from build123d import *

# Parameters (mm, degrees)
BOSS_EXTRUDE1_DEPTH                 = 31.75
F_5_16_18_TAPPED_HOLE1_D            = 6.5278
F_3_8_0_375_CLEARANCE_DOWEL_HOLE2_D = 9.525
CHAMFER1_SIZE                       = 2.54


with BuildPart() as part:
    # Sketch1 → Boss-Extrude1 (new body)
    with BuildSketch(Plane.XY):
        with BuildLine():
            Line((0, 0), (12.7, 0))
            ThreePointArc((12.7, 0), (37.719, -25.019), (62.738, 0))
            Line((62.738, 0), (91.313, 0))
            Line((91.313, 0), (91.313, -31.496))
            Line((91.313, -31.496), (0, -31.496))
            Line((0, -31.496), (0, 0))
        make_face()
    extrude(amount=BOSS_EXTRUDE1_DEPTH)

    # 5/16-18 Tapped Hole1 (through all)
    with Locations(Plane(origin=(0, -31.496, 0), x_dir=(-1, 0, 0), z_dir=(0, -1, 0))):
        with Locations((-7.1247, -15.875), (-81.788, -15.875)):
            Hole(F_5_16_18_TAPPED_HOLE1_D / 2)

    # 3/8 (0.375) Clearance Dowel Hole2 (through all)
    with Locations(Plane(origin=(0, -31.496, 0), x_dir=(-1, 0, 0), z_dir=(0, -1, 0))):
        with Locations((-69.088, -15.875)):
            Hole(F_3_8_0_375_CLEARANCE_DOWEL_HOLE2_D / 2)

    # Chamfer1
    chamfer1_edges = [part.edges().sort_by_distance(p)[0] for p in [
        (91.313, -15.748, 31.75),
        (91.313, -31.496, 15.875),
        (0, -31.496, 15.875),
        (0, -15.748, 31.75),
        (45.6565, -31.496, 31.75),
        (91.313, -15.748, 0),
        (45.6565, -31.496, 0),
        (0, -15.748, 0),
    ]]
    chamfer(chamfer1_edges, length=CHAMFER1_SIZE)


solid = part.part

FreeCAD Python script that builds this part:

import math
import FreeCAD as App
import Part
import Sketcher
from FreeCAD import Vector
Q = App.Units.Quantity


def edges_at(feature, points):
    """Names of the edges that pass closest to the given points."""
    edges = feature.Shape.Edges
    near = lambda p: min(range(len(edges)), key=lambda i: edges[i].distToShape(Part.Vertex(*p))[0])
    return sorted({f"Edge{near(p) + 1}" for p in points})

doc = App.newDocument("Part")
params = doc.addObject("Spreadsheet::Sheet", "Params")
for row, (alias, value) in enumerate([
    ("sketch1_width", "0.5 in"),
    ("sketch1_radius", "0.985 in"),
    ("sketch1_height", "1.24 in"),
    ("sketch1_width2", "3.595 in"),
    ("pad1_length", "1.25 in"),
    ("sketch2_diameter", "0.257 in"),
    ("hole_diameter", "0.257 in"),
    ("sketch3_diameter", "0.375 in"),
    ("hole2_diameter", "0.375 in"),
    ("chamfer_size", "0.1 in"),
], start=1):
    params.set(f"A{row}", alias)
    params.set(f"B{row}", "=" + value)
    params.setAlias(f"B{row}", alias)

body = doc.addObject("PartDesign::Body", "Body")

# Sketch on XY plane
sketch1 = body.newObject("Sketcher::SketchObject", "Sketch")
sketch1.AttachmentSupport = (doc.getObject("XY_Plane"), [""])
sketch1.MapMode = "FlatFace"
sketch1.addGeometry(Part.LineSegment(Vector(12.7, 0, 0), Vector(0, 0, 0)), False)
sketch1.addGeometry(Part.LineSegment(Vector(0, 0, 0), Vector(0, -31.496, 0)), False)
sketch1.addGeometry(Part.LineSegment(Vector(0, -31.496, 0), Vector(91.313, -31.496, 0)), False)
sketch1.addGeometry(Part.LineSegment(Vector(91.313, -31.496, 0), Vector(91.313, 0, 0)), False)
sketch1.addGeometry(Part.LineSegment(Vector(91.313, 0, 0), Vector(62.738, 0, 0)), False)
sketch1.addGeometry(Part.ArcOfCircle(Part.Circle(Vector(37.719, 0, 0), Vector(0, 0, 1), 25.019), math.radians(180), math.radians(360)), False)
sketch1.addConstraint(Sketcher.Constraint("Coincident", 0, 2, 1, 1))
sketch1.addConstraint(Sketcher.Constraint("Coincident", 1, 2, 2, 1))
sketch1.addConstraint(Sketcher.Constraint("Coincident", 2, 2, 3, 1))
sketch1.addConstraint(Sketcher.Constraint("Coincident", 3, 2, 4, 1))
sketch1.addConstraint(Sketcher.Constraint("Coincident", 4, 2, 5, 2))
sketch1.addConstraint(Sketcher.Constraint("Coincident", 5, 1, 0, 1))
sketch1.addConstraint(Sketcher.Constraint("Horizontal", 0))
sketch1.addConstraint(Sketcher.Constraint("Vertical", 1))
sketch1.addConstraint(Sketcher.Constraint("Horizontal", 2))
sketch1.addConstraint(Sketcher.Constraint("Vertical", 3))
sketch1.addConstraint(Sketcher.Constraint("Horizontal", 4))
sketch1.addConstraint(Sketcher.Constraint("Coincident", 0, 2, -1, 1))
sketch1.addConstraint(Sketcher.Constraint("PointOnObject", 5, 3, -1))
sketch1.addConstraint(Sketcher.Constraint("PointOnObject", 3, 2, -1))
sketch1.addConstraint(Sketcher.Constraint("DistanceX", 0, 2, 0, 1, Q("0.5 in")))
sketch1.addConstraint(Sketcher.Constraint("Radius", 5, Q("0.985 in")))
sketch1.addConstraint(Sketcher.Constraint("DistanceY", 1, 2, 1, 1, Q("1.24 in")))
sketch1.addConstraint(Sketcher.Constraint("DistanceX", 2, 1, 2, 2, Q("3.595 in")))
sketch1.setExpression("Constraints[14]", "Params.sketch1_width")
sketch1.setExpression("Constraints[15]", "Params.sketch1_radius")
sketch1.setExpression("Constraints[16]", "Params.sketch1_height")
sketch1.setExpression("Constraints[17]", "Params.sketch1_width2")
pad1 = body.newObject("PartDesign::Pad", "Pad")
pad1.Profile = sketch1
pad1.setExpression("Length", "Params.pad1_length")

# Sketch on XZ plane
sketch2 = body.newObject("Sketcher::SketchObject", "Sketch001")
sketch2.AttachmentSupport = (doc.getObject("XZ_Plane"), [""])
sketch2.MapMode = "FlatFace"
sketch2.AttachmentOffset = App.Placement(Vector(0, 0, 1.24 * 25.4), App.Rotation())
sketch2.addGeometry(Part.Circle(Vector(7.1247, 15.875, 0), Vector(0, 0, 1), 3.2639), False)
sketch2.addGeometry(Part.Circle(Vector(81.788, 15.875, 0), Vector(0, 0, 1), 3.2639), False)
sketch2.addConstraint(Sketcher.Constraint("Equal", 0, 1))
sketch2.addConstraint(Sketcher.Constraint("Horizontal", 0, 3, 1, 3))
sketch2.addConstraint(Sketcher.Constraint("Diameter", 0, Q("0.257 in")))
sketch2.addConstraint(Sketcher.Constraint("DistanceX", -1, 1, 1, 3, Q("3.22 in")))
sketch2.addConstraint(Sketcher.Constraint("DistanceY", -1, 1, 0, 3, Q("0.625 in")))
sketch2.addConstraint(Sketcher.Constraint("DistanceX", -1, 1, 0, 3, Q("0.2805 in")))
sketch2.setExpression("Constraints[2]", "Params.sketch2_diameter")
doc.recompute()
hole = body.newObject("PartDesign::Hole", "Hole")
hole.Profile = sketch2
hole.ThreadType = "None"
hole.setExpression("Diameter", "Params.hole_diameter")
hole.DepthType = "ThroughAll"

# Sketch on XZ plane
sketch3 = body.newObject("Sketcher::SketchObject", "Sketch002")
sketch3.AttachmentSupport = (doc.getObject("XZ_Plane"), [""])
sketch3.MapMode = "FlatFace"
sketch3.AttachmentOffset = App.Placement(Vector(0, 0, 1.24 * 25.4), App.Rotation())
sketch3.addGeometry(Part.Circle(Vector(69.088, 15.875, 0), Vector(0, 0, 1), 4.7625), False)
sketch3.addConstraint(Sketcher.Constraint("Diameter", 0, Q("0.375 in")))
sketch3.addConstraint(Sketcher.Constraint("DistanceX", -1, 1, 0, 3, Q("2.72 in")))
sketch3.addConstraint(Sketcher.Constraint("DistanceY", -1, 1, 0, 3, Q("0.625 in")))
sketch3.setExpression("Constraints[0]", "Params.sketch3_diameter")
doc.recompute()
hole2 = body.newObject("PartDesign::Hole", "Hole001")
hole2.Profile = sketch3
hole2.ThreadType = "None"
hole2.setExpression("Diameter", "Params.hole2_diameter")
hole2.DepthType = "ThroughAll"
doc.recompute()

chamfer = body.newObject("PartDesign::Chamfer", "Chamfer")
chamfer.Base = (hole2, edges_at(hole2, [
    (91.313, -15.748, 31.75),
    (91.313, -31.496, 15.875),
    (0, -31.496, 15.875),
    (0, -15.748, 31.75),
    (45.657, -31.496, 31.75),
    (91.313, -15.748, 0),
    (45.657, -31.496, 0),
    (0, -15.748, 0),
]))
chamfer.setExpression("Size", "Params.chamfer_size")

doc.recompute()
